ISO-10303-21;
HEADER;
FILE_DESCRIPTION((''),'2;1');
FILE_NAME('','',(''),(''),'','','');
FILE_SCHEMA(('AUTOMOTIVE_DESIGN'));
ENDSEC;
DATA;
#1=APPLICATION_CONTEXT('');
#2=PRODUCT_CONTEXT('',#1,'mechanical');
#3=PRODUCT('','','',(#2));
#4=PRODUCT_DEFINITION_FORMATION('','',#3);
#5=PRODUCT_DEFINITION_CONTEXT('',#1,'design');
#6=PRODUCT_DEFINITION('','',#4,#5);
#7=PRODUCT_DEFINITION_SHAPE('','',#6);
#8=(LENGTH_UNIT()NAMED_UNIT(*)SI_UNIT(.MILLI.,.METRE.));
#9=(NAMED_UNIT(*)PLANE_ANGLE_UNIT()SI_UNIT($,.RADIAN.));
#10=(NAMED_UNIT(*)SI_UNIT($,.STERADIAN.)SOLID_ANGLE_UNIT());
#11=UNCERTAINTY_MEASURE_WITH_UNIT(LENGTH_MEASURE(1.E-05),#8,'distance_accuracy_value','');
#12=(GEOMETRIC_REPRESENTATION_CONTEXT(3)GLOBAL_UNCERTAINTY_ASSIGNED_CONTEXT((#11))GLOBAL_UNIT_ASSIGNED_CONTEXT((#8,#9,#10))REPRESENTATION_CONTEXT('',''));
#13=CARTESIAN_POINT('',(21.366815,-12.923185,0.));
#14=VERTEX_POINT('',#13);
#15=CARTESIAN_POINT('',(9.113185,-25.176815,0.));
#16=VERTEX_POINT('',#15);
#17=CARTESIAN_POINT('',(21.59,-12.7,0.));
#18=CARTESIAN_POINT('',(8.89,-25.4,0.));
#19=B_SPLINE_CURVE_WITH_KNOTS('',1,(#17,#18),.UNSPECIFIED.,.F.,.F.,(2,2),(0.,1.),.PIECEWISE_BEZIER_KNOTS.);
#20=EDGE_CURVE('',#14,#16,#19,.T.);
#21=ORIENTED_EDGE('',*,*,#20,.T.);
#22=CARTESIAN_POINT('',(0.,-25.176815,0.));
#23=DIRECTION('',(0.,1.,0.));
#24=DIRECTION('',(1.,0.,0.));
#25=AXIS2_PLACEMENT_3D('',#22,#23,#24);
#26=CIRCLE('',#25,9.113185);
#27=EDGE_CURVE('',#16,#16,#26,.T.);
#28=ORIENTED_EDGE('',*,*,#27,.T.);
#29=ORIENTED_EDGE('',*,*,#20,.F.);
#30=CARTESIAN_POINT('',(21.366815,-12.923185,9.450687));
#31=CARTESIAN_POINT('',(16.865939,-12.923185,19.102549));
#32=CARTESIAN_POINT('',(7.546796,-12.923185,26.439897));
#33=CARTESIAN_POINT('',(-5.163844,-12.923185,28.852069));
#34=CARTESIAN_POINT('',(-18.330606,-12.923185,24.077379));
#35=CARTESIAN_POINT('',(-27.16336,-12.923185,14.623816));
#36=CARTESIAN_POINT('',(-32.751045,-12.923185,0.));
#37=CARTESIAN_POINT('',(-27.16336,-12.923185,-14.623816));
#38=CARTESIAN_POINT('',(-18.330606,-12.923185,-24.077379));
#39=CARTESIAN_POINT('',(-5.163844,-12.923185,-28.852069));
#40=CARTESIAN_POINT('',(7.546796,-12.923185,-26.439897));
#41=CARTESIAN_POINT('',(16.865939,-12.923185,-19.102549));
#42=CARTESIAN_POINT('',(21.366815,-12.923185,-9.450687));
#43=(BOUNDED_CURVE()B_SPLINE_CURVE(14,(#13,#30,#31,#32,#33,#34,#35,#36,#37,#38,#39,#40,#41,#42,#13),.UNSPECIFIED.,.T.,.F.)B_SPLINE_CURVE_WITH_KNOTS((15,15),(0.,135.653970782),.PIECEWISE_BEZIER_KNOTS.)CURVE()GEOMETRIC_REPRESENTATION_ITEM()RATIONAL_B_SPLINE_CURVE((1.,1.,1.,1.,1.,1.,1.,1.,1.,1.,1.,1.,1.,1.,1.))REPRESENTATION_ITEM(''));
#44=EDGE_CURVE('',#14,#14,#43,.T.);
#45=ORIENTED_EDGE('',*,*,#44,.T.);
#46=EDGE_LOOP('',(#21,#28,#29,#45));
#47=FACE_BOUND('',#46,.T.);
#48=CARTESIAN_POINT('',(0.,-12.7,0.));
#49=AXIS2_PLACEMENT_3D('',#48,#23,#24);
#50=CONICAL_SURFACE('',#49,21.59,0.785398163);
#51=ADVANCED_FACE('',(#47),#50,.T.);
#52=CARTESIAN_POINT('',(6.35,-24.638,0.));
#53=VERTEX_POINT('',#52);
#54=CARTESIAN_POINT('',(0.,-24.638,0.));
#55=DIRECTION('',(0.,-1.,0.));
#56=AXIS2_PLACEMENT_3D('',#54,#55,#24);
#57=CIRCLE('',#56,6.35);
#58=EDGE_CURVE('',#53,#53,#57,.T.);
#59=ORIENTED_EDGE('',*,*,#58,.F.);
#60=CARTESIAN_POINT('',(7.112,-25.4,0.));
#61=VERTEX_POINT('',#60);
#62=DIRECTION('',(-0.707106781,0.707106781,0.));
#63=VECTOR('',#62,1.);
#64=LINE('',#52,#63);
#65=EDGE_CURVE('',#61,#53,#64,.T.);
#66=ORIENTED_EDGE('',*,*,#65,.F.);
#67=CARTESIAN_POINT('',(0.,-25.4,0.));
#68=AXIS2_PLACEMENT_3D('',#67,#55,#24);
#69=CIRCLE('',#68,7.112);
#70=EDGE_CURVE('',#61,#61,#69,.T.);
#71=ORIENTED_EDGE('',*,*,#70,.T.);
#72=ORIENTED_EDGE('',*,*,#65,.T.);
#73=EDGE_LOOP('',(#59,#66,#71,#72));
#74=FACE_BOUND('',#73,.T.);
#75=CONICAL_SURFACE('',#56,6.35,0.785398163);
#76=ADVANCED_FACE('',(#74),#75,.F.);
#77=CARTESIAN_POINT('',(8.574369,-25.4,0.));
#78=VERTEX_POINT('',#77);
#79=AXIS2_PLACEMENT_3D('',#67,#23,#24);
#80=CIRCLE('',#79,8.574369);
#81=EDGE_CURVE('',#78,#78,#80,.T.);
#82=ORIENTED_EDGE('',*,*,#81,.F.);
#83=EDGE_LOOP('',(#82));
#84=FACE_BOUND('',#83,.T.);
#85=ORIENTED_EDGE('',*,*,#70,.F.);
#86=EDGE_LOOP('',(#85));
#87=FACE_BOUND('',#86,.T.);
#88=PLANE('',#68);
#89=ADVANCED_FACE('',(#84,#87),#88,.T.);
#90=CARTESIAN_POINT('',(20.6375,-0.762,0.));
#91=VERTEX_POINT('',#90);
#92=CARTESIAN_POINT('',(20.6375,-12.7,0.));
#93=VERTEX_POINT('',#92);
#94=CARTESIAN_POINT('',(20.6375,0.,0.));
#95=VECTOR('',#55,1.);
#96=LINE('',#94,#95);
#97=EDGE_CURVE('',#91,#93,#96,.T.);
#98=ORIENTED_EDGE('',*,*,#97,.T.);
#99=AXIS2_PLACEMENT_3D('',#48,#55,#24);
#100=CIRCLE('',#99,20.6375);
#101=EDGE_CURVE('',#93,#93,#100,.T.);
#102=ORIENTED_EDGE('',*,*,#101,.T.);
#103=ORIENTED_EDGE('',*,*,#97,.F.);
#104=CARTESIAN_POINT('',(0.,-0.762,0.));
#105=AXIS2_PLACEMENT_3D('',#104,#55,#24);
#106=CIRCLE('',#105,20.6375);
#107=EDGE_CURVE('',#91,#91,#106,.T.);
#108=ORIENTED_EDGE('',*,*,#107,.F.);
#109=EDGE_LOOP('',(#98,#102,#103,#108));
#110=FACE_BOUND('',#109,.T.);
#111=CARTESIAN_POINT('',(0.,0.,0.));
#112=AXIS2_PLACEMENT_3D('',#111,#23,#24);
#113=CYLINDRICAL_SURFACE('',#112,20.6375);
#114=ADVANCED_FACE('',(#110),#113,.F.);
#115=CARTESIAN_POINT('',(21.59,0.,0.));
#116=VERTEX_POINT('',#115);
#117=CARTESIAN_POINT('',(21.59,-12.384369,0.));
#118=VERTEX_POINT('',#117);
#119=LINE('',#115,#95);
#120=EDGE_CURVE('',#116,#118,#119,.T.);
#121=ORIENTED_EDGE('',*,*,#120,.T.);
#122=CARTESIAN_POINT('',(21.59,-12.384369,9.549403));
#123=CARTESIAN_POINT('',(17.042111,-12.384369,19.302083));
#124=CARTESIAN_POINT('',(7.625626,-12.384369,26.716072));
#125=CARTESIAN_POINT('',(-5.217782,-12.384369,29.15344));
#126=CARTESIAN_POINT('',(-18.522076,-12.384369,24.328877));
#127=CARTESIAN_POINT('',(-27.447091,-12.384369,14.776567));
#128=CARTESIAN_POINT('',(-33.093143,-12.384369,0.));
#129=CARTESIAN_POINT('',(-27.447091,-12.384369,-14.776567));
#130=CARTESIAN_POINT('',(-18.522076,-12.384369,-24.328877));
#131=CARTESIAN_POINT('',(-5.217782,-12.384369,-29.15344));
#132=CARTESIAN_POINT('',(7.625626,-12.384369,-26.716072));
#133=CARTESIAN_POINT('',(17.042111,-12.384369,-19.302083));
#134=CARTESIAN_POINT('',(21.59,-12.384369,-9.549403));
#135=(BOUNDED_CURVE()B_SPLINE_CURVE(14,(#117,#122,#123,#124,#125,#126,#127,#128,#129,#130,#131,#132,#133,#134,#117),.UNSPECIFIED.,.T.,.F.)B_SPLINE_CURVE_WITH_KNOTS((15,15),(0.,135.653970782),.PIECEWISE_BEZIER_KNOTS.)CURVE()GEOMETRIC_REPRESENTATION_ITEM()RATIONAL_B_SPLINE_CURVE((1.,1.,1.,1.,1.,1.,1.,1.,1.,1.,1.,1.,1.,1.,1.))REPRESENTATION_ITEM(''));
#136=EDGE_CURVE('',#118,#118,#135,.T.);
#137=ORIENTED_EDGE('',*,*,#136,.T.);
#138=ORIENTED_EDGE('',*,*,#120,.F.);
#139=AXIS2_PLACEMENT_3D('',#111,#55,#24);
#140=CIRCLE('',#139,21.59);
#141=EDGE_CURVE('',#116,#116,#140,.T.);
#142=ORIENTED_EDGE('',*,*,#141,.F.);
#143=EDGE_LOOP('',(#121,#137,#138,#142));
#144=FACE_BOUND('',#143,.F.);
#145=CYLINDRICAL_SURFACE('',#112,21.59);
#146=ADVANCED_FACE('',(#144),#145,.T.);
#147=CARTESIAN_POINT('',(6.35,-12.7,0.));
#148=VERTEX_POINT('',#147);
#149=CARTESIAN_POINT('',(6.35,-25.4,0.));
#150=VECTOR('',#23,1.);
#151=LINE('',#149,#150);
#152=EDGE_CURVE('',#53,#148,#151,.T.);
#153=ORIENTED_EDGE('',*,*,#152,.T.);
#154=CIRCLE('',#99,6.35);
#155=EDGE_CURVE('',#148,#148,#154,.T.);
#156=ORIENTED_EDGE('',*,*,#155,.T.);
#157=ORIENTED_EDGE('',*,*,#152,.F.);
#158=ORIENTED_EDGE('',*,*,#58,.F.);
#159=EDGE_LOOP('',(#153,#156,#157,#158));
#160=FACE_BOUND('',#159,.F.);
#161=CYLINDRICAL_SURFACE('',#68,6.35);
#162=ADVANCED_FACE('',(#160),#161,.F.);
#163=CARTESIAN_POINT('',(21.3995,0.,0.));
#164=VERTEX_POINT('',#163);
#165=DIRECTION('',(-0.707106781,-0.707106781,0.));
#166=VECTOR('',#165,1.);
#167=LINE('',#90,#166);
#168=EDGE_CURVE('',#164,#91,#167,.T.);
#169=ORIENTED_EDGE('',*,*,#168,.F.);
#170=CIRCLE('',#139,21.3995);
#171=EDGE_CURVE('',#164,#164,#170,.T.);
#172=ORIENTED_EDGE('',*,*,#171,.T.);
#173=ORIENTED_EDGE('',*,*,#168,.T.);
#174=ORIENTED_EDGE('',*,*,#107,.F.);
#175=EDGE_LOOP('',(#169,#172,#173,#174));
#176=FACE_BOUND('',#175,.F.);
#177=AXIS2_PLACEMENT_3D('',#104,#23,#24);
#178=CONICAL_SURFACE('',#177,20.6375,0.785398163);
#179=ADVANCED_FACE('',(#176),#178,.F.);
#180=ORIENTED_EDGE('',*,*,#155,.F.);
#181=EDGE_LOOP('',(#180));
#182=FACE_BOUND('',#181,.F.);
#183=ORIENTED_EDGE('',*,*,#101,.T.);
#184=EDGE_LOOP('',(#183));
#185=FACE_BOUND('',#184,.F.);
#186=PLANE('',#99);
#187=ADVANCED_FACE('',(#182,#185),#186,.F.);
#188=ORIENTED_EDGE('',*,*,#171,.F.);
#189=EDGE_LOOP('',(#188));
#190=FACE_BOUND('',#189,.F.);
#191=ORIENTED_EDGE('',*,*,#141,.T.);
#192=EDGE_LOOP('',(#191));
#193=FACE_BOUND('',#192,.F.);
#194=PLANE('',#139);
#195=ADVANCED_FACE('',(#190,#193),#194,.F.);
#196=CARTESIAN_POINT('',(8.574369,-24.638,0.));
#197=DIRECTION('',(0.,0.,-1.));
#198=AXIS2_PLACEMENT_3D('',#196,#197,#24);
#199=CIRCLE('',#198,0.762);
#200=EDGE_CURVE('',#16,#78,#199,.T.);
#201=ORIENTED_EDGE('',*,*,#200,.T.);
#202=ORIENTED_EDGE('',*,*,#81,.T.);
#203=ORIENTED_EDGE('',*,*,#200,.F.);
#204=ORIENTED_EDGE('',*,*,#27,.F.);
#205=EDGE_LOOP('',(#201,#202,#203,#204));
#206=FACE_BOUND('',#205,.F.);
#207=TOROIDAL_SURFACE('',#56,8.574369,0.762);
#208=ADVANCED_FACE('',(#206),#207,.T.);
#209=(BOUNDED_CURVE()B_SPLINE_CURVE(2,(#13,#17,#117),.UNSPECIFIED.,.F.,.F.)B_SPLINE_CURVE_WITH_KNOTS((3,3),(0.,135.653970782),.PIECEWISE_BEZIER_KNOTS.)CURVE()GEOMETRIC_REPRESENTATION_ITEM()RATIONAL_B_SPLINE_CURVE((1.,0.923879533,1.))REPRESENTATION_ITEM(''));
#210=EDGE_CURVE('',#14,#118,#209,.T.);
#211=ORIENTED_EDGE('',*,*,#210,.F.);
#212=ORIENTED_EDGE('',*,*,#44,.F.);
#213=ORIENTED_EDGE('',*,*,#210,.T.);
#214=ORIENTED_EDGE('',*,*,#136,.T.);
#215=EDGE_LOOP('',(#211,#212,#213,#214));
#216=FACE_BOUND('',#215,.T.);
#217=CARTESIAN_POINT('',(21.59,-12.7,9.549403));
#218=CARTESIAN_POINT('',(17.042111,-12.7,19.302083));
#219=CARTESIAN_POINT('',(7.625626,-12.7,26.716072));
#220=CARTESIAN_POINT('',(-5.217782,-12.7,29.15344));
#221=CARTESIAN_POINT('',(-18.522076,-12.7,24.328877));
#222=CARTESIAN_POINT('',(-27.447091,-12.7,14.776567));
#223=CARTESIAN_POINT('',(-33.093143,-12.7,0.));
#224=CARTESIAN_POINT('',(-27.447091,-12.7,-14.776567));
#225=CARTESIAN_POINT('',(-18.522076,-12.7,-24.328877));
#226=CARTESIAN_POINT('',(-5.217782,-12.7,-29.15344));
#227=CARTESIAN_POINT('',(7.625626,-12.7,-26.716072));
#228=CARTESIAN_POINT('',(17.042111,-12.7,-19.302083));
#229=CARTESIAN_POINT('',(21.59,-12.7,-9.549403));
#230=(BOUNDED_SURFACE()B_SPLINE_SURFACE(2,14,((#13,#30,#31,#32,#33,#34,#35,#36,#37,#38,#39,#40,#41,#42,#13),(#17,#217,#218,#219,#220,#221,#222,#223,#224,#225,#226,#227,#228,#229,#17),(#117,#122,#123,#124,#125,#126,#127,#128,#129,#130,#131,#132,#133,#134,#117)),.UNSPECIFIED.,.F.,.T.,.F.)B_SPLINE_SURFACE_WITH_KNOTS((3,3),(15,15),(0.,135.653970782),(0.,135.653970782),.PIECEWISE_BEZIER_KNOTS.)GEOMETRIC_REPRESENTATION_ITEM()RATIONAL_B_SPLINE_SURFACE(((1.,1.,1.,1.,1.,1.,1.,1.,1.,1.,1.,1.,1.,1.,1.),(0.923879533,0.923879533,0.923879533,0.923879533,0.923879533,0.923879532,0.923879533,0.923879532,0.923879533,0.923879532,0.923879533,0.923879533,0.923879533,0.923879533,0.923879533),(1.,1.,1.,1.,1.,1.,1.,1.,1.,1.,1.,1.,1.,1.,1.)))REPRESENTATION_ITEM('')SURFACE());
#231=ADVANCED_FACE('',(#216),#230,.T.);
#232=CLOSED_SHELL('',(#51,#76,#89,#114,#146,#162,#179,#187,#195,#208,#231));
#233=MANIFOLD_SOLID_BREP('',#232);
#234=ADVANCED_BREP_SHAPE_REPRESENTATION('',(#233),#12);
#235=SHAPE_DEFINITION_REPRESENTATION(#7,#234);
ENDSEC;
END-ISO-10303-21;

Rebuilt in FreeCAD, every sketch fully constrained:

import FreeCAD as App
import Part
import Sketcher

V = App.Vector
Q = App.Units.Quantity


def edges_at(feature, points):
    """Names of the edges that pass closest to the given points."""
    edges = feature.Shape.Edges
    near = lambda p: min(range(len(edges)), key=lambda i: edges[i].distToShape(Part.Vertex(*p))[0])
    return sorted({f"Edge{near(p) + 1}" for p in points})

doc = App.newDocument("Part")
params = doc.addObject("Spreadsheet::Sheet", "Params")
for row, (alias, value) in enumerate([
    ("sketch1_diameter", "1.7 in"),
    ("sketch1_diameter2", "1.625 in"),
    ("pad1_length", "0.5 in"),
    ("sketch2_diameter", "1.7 in"),
    ("pad2_length", "0.5 in"),
    ("pad2_taper", "-45 deg"),
    ("fillet_radius", "0.03 in"),
    ("sketch3_diameter", "0.5 in"),
    ("pocket1_length", "1 in"),
    ("chamfer_size", "0.03 in"),
], start=1):
    params.set(f"A{row}", alias)
    params.set(f"B{row}", "=" + value)
    params.setAlias(f"B{row}", alias)

body = doc.addObject("PartDesign::Body", "Body")

sketch1 = doc.addObject("Sketcher::SketchObject", "Sketch")
body.addObject(sketch1)
sketch1.AttachmentSupport = (doc.XZ_Plane, [""])
sketch1.MapMode = "FlatFace"
sketch1.addGeometry([
    Part.Circle(V(0, 0, 0), V(0, 0, 1), 22),
    Part.Circle(V(0, 0, 0), V(0, 0, 1), 21),
], False)
sketch1.addConstraint([
    Sketcher.Constraint("Coincident", 0, 3, -1, 1),
    Sketcher.Constraint("Coincident", 1, 3, -1, 1),
    Sketcher.Constraint("Diameter", 0, Q("1.7 in")),
    Sketcher.Constraint("Diameter", 1, Q("1.625 in")),
])
sketch1.setExpression("Constraints[2]", "Params.sketch1_diameter")
sketch1.setExpression("Constraints[3]", "Params.sketch1_diameter2")
pad1 = doc.addObject("PartDesign::Pad", "Pad")
body.addObject(pad1)
pad1.Profile = sketch1
pad1.setExpression("Length", "Params.pad1_length")

sketch2 = doc.addObject("Sketcher::SketchObject", "Sketch001")
body.addObject(sketch2)
sketch2.AttachmentSupport = (doc.XZ_Plane, [""])
sketch2.MapMode = "FlatFace"
sketch2.AttachmentOffset = App.Placement(V(0, 0, 0.5 * 25.4), App.Rotation())
sketch2.addGeometry(Part.Circle(V(0, 0, 0), V(0, 0, 1), 22), False)
sketch2.addConstraint([
    Sketcher.Constraint("Coincident", 0, 3, -1, 1),
    Sketcher.Constraint("Diameter", 0, Q("1.7 in")),
])
sketch2.setExpression("Constraints[1]", "Params.sketch2_diameter")
pad2 = doc.addObject("PartDesign::Pad", "Pad001")
body.addObject(pad2)
pad2.Profile = sketch2
pad2.setExpression("Length", "Params.pad2_length")
pad2.setExpression("TaperAngle", "Params.pad2_taper")
doc.recompute()

fillet = doc.addObject("PartDesign::Fillet", "Fillet")
body.addObject(fillet)
fillet.Base = (pad2, edges_at(pad2, [(-21.59, -12.7, 0), (-8.89, -25.4, 0)]))
fillet.setExpression("Radius", "Params.fillet_radius")

sketch3 = doc.addObject("Sketcher::SketchObject", "Sketch002")
body.addObject(sketch3)
sketch3.AttachmentSupport = (doc.XZ_Plane, [""])
sketch3.MapMode = "FlatFace"
sketch3.AttachmentOffset = App.Placement(V(0, 0, 1 * 25.4), App.Rotation())
sketch3.addGeometry(Part.Circle(V(0, 0, 0), V(0, 0, 1), 6), False)
sketch3.addConstraint([
    Sketcher.Constraint("Coincident", 0, 3, -1, 1),
    Sketcher.Constraint("Diameter", 0, Q("0.5 in")),
])
sketch3.setExpression("Constraints[1]", "Params.sketch3_diameter")
pocket1 = doc.addObject("PartDesign::Pocket", "Pocket")
body.addObject(pocket1)
pocket1.Profile = sketch3
pocket1.setExpression("Length", "Params.pocket1_length")
doc.recompute()

chamfer = doc.addObject("PartDesign::Chamfer", "Chamfer")
body.addObject(chamfer)
chamfer.Base = (pocket1, edges_at(pocket1, [(-6.35, -25.4, 0), (-20.637, 0, 0)]))
chamfer.setExpression("Size", "Params.chamfer_size")

doc.recompute()
